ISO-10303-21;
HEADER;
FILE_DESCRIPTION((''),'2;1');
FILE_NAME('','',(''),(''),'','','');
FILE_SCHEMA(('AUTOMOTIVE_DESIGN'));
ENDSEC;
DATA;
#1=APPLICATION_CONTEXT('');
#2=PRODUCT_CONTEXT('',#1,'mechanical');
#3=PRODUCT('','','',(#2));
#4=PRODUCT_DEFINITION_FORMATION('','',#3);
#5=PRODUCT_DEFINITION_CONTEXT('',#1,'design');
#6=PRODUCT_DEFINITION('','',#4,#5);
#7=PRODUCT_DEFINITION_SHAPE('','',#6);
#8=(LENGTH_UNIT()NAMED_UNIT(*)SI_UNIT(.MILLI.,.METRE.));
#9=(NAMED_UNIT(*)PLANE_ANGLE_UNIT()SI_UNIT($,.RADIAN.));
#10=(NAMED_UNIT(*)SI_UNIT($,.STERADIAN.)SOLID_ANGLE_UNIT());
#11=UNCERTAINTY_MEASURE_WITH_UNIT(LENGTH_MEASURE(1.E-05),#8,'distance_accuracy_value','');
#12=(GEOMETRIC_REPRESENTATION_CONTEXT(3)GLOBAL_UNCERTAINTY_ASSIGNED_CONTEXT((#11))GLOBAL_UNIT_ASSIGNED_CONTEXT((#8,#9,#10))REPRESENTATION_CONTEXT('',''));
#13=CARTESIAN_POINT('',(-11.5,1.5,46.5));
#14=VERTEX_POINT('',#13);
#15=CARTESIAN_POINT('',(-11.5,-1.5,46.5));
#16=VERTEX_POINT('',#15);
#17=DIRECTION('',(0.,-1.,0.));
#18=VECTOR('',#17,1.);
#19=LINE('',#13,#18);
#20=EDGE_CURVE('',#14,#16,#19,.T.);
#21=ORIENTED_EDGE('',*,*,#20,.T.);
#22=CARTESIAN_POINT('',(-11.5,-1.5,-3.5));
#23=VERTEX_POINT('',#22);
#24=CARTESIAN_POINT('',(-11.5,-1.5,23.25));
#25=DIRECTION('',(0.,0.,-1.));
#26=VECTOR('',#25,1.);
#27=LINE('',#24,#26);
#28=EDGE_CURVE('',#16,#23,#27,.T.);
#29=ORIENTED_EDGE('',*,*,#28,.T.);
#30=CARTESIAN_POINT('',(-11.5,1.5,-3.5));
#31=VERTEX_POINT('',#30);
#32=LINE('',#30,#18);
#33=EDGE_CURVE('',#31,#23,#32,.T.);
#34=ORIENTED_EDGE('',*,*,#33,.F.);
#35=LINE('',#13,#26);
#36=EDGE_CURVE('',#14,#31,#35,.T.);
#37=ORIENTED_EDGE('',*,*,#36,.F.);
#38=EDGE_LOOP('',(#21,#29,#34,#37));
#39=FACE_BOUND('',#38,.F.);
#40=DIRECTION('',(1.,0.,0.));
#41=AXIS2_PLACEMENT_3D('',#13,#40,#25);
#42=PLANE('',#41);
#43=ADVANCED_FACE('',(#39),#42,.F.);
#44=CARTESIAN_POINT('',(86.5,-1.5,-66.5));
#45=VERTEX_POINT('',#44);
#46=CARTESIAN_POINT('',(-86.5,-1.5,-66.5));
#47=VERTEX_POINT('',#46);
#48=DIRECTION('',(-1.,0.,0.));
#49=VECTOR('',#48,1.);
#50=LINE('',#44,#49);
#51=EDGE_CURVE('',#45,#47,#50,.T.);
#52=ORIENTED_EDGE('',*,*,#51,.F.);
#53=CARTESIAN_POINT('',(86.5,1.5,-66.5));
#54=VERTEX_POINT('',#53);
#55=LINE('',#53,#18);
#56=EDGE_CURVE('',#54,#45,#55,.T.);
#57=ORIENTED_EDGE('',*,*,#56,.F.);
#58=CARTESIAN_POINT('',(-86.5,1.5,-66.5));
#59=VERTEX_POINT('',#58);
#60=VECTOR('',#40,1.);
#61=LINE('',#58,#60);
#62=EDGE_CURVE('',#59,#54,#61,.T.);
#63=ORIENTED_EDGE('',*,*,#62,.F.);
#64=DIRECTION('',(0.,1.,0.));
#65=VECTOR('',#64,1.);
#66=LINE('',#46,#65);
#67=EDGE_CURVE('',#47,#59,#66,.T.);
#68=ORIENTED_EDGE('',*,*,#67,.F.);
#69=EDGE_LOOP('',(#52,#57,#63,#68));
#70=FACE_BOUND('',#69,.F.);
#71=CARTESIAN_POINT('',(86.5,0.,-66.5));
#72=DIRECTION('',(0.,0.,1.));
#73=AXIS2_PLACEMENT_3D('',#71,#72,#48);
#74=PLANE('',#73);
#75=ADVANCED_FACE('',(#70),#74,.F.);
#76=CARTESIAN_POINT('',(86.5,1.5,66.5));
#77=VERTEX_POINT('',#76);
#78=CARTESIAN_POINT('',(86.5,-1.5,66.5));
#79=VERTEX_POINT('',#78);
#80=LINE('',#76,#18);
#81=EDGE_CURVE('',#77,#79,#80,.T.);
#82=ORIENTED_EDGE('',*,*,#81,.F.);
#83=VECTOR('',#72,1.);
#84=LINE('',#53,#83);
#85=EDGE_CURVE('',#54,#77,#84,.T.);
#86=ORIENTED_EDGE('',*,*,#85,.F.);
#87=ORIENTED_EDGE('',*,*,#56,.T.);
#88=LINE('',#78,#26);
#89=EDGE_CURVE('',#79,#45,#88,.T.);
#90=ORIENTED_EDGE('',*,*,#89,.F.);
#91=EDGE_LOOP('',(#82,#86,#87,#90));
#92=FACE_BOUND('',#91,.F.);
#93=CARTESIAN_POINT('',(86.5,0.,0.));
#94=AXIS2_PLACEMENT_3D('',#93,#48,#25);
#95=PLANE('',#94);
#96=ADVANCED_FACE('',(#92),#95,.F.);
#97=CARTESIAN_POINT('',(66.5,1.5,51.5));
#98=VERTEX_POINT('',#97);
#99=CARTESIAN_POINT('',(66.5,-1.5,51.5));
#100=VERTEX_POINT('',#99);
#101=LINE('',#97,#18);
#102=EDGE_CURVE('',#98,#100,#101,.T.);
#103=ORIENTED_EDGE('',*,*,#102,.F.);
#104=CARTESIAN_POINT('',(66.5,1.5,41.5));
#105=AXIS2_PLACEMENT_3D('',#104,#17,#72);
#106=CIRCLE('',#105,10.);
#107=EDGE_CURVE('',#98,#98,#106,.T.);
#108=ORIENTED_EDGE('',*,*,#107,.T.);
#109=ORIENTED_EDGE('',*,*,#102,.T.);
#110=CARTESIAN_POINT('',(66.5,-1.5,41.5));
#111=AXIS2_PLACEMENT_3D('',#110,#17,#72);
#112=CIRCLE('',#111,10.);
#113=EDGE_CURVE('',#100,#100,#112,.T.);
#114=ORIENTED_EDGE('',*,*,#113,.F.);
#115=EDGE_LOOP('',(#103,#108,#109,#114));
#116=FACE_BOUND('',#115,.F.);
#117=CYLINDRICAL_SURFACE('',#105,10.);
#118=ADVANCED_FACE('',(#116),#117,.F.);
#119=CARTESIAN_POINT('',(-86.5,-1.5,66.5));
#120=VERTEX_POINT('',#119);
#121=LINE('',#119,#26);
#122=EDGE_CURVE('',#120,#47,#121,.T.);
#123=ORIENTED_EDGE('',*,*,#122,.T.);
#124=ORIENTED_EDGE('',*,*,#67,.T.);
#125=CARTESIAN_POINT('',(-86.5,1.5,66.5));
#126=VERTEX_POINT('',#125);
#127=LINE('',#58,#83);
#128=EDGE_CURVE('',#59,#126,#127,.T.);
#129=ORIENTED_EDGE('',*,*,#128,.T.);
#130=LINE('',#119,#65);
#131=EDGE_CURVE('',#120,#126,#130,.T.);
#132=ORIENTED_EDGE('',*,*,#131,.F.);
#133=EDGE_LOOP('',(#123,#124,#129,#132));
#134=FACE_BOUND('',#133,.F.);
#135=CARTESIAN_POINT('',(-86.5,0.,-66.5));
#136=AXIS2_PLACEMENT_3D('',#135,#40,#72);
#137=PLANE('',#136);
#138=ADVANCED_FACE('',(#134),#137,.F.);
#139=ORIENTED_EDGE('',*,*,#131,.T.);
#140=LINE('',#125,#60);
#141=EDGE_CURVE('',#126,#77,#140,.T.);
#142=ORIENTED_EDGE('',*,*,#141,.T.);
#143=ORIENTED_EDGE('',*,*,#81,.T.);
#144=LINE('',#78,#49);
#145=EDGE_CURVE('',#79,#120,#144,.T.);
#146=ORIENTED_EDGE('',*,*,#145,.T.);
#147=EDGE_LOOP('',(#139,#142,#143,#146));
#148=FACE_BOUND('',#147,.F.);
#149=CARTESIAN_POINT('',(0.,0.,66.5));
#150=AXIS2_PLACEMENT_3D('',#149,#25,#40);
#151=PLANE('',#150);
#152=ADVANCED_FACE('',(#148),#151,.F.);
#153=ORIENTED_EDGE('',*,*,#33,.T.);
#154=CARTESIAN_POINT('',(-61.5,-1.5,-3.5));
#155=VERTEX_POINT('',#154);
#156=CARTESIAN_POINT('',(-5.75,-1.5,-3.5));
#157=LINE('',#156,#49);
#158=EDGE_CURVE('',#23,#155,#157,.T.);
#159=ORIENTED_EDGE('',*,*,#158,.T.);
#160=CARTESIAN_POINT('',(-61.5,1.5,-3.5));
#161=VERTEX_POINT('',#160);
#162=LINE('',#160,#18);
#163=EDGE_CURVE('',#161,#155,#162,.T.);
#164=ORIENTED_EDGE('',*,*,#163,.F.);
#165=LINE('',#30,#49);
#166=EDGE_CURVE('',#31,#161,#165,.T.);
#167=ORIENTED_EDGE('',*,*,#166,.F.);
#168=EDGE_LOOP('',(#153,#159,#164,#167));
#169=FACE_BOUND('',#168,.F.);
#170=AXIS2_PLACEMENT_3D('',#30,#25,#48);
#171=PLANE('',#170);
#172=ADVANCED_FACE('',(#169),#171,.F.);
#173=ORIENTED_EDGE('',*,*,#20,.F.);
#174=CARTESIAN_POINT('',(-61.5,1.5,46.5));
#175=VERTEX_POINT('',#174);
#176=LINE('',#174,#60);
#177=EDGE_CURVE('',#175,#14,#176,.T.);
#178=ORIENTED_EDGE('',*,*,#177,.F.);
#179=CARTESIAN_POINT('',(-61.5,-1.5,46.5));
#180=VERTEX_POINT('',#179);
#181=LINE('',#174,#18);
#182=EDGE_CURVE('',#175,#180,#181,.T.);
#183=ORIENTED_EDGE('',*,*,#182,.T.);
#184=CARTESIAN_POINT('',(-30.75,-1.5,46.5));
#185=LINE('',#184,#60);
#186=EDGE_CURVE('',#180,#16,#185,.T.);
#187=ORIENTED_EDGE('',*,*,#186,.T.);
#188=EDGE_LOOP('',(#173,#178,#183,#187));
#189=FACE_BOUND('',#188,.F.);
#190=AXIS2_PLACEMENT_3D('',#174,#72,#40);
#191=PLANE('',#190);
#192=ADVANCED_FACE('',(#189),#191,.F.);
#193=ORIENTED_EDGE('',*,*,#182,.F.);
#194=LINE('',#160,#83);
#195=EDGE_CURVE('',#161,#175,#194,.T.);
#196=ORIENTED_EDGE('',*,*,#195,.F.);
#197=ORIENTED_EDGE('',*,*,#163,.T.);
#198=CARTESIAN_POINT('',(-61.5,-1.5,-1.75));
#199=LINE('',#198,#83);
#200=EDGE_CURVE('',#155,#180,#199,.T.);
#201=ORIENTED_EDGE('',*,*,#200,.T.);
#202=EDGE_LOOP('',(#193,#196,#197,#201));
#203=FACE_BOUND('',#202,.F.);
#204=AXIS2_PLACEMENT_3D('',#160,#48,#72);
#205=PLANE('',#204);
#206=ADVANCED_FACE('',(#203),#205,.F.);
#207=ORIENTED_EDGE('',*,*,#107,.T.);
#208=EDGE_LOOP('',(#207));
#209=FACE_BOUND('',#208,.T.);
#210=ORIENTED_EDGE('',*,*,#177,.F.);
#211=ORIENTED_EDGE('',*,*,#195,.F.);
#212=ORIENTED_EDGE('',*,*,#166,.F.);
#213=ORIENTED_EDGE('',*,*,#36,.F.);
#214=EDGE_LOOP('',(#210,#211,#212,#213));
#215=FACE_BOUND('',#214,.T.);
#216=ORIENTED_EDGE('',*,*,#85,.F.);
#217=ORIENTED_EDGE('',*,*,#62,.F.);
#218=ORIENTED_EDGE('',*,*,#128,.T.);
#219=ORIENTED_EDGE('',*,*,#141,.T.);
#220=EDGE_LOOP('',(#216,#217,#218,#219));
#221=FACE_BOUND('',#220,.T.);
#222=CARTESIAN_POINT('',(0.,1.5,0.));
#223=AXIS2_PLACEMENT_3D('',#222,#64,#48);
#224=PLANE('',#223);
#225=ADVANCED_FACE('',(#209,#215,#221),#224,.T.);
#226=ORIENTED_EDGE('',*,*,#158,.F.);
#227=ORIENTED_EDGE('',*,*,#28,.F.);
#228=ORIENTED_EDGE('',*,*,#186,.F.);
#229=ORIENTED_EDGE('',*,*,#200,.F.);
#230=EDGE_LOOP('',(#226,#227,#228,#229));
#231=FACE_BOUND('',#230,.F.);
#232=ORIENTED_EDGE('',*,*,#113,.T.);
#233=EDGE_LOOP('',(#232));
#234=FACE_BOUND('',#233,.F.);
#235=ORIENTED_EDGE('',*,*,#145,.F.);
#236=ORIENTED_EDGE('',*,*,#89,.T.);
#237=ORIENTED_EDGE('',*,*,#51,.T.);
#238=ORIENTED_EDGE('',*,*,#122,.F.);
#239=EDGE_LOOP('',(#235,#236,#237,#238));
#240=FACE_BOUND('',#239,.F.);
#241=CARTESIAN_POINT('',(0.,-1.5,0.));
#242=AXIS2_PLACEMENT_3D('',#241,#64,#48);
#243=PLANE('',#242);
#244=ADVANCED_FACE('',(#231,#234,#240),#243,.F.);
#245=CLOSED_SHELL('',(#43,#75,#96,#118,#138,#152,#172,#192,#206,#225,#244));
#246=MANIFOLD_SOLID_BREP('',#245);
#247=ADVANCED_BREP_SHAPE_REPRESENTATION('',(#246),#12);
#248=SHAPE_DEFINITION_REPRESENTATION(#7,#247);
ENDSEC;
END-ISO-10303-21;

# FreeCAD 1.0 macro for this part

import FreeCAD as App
import Part
import Sketcher
from FreeCAD import Vector


def add_polygon(sketch, points):
    """Adds a closed chain of lines whose ends are joined by coincident constraints."""
    first, n = sketch.GeometryCount, len(points)
    for a, b in zip(points, points[1:] + points[:1]):
        sketch.addGeometry(Part.LineSegment(App.Vector(*a, 0), App.Vector(*b, 0)), False)
    for i in range(n):
        sketch.addConstraint(Sketcher.Constraint("Coincident", first + i, 2, first + (i + 1) % n, 1))

doc = App.newDocument("Part")
body = doc.addObject("PartDesign::Body", "Body")

# Sketch on XZ plane
sketch1 = doc.addObject("Sketcher::SketchObject", "Sketch")
body.addObject(sketch1)
sketch1.AttachmentSupport = (doc.XZ_Plane, [""])
sketch1.MapMode = "FlatFace"
add_polygon(sketch1, [(86, -66), (-86, -66), (-86, 66), (86, 66)])  # lines 0-3
sketch1.addConstraint(Sketcher.Constraint("Horizontal", 0))
sketch1.addConstraint(Sketcher.Constraint("Vertical", 1))
sketch1.addConstraint(Sketcher.Constraint("Horizontal", 2))
sketch1.addConstraint(Sketcher.Constraint("Vertical", 3))
sketch1.addConstraint(Sketcher.Constraint("Symmetric", 0, 2, 2, 2, -1, 1))
sketch1.addConstraint(Sketcher.Constraint("DistanceX", 0, 2, 0, 1, 173.0))
sketch1.addConstraint(Sketcher.Constraint("DistanceY", 1, 1, 1, 2, 133.0))
pad1 = doc.addObject("PartDesign::Pad", "Pad")
body.addObject(pad1)
pad1.Profile = sketch1
pad1.Length = 3
pad1.Midplane = True

# Sketch on XZ plane
sketch2 = doc.addObject("Sketcher::SketchObject", "Sketch001")
body.addObject(sketch2)
sketch2.AttachmentSupport = (doc.XZ_Plane, [""])
sketch2.MapMode = "FlatFace"
sketch2.AttachmentOffset = App.Placement(Vector(0, 0, -1.5), App.Rotation())
add_polygon(sketch2, [(-62, -4), (-62, 46), (-12, 46), (-12, -4)])  # lines 0-3
sketch2.addConstraint(Sketcher.Constraint("Vertical", 0))
sketch2.addConstraint(Sketcher.Constraint("Horizontal", 1))
sketch2.addConstraint(Sketcher.Constraint("Vertical", 2))
sketch2.addConstraint(Sketcher.Constraint("Horizontal", 3))
sketch2.addConstraint(Sketcher.Constraint("Equal", 3, 0))
sketch2.addConstraint(Sketcher.Constraint("DistanceX", 1, 1, 1, 2, 50.0))
sketch2.addConstraint(Sketcher.Constraint("DistanceX", 0, 2, -1, 1, 61.5))
sketch2.addConstraint(Sketcher.Constraint("DistanceY", -1, 1, 0, 2, 46.5))
pocket1 = doc.addObject("PartDesign::Pocket", "Pocket")
body.addObject(pocket1)
pocket1.Profile = sketch2
pocket1.Type = "ThroughAll"
pocket1.Reversed = True

# Sketch on XZ plane
sketch3 = doc.addObject("Sketcher::SketchObject", "Sketch002")
body.addObject(sketch3)
sketch3.AttachmentSupport = (doc.XZ_Plane, [""])
sketch3.MapMode = "FlatFace"
sketch3.AttachmentOffset = App.Placement(Vector(0, 0, -1.5), App.Rotation())
sketch3.addGeometry(Part.Circle(Vector(66, 42, 0), Vector(0, 0, 1), 10), False)
sketch3.addConstraint(Sketcher.Constraint("Diameter", 0, 20.0))
sketch3.addConstraint(Sketcher.Constraint("DistanceX", -1, 1, 0, 3, 66.5))
sketch3.addConstraint(Sketcher.Constraint("DistanceY", -1, 1, 0, 3, 41.5))
doc.recompute()
hole = doc.addObject("PartDesign::Hole", "Hole")
body.addObject(hole)
hole.Profile = sketch3
hole.ThreadType = "None"
hole.Diameter = 20
hole.DepthType = "ThroughAll"
hole.Reversed = True

doc.recompute()
